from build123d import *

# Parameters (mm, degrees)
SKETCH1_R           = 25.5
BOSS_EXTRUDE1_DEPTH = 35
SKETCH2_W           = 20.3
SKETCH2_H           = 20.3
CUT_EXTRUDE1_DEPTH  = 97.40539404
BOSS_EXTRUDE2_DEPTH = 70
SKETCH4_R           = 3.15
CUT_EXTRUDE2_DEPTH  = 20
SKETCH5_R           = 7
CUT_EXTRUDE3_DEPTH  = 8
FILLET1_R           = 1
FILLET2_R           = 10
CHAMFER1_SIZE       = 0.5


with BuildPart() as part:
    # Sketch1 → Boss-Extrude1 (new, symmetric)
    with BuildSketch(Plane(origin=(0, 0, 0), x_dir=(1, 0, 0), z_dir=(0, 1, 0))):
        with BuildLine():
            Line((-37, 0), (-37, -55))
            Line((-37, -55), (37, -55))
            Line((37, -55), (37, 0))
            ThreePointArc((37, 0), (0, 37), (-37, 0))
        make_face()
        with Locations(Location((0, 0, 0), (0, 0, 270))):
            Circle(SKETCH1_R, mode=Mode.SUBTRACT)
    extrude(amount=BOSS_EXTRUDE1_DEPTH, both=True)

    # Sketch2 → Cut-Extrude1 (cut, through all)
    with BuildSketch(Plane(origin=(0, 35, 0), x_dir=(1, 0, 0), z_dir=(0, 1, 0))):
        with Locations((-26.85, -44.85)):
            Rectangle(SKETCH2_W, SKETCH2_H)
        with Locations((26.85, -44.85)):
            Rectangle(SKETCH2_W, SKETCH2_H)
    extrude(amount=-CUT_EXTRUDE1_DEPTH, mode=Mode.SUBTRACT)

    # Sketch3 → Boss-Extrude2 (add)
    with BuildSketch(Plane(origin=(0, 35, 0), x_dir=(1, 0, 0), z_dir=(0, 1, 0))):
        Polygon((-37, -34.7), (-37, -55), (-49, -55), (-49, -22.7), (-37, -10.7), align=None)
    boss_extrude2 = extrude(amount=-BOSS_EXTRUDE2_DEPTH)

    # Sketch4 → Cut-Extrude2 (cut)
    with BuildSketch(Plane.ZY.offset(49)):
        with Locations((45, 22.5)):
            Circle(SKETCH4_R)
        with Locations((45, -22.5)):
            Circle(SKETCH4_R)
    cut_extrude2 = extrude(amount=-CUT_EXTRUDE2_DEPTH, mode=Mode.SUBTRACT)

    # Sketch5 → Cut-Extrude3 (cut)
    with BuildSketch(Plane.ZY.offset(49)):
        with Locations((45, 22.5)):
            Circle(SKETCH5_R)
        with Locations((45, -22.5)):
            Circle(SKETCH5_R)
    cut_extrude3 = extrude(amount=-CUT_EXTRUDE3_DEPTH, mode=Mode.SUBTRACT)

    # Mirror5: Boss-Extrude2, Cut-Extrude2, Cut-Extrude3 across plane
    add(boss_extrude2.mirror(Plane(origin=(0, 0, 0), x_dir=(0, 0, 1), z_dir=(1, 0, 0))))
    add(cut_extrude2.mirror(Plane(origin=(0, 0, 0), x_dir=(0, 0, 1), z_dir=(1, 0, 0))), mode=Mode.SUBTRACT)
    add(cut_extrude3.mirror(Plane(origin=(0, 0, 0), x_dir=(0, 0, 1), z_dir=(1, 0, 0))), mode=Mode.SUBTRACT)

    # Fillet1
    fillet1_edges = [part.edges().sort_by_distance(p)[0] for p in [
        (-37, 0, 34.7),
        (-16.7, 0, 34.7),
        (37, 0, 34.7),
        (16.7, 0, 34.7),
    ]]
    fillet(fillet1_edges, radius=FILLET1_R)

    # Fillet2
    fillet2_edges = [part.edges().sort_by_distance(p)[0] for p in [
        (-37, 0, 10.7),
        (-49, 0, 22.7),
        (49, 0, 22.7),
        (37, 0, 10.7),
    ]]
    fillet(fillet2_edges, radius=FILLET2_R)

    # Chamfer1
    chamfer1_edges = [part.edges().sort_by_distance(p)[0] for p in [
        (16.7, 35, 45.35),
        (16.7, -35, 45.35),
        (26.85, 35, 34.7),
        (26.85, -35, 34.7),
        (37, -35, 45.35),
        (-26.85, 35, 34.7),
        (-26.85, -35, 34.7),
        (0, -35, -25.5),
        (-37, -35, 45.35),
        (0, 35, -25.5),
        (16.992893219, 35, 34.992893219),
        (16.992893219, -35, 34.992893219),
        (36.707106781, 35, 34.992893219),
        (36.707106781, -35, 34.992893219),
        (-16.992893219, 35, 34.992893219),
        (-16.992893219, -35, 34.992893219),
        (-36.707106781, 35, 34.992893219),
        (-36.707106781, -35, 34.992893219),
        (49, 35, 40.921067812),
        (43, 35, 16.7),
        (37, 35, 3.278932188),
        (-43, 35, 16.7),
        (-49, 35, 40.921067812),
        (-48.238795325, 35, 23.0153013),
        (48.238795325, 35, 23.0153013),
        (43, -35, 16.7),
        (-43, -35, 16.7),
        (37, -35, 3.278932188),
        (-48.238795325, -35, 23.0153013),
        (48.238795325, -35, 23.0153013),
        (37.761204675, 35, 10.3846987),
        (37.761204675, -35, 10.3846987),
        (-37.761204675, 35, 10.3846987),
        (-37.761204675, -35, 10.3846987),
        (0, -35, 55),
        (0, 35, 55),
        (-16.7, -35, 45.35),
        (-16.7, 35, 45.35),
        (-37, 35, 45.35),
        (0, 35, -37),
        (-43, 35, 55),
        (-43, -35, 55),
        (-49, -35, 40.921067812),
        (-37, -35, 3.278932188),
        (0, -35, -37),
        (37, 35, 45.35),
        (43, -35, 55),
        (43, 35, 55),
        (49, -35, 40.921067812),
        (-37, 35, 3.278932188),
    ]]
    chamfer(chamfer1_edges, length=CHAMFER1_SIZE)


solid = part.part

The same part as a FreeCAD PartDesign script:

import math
import FreeCAD as App
import Part
import Sketcher
Q = App.Units.Quantity


def edges_at(feature, points):
    """Names of the edges that pass closest to the given points."""
    edges = feature.Shape.Edges
    near = lambda p: min(range(len(edges)), key=lambda i: edges[i].distToShape(Part.Vertex(*p))[0])
    return sorted({f"Edge{near(p) + 1}" for p in points})

doc = App.newDocument("Part")
body = doc.addObject("PartDesign::Body", "Body")

# Sketch on XZ plane
sketch1 = body.newObject("Sketcher::SketchObject", "Sketch")
sketch1.AttachmentSupport = (doc.getObject("XZ_Plane"), [""])
sketch1.MapMode = "FlatFace"
sketch1.addGeometry(Part.LineSegment(App.Vector(-37, 0, 0), App.Vector(-37, 55, 0)), False)
sketch1.addGeometry(Part.LineSegment(App.Vector(-37, 55, 0), App.Vector(37, 55, 0)), False)
sketch1.addGeometry(Part.LineSegment(App.Vector(37, 55, 0), App.Vector(37, 0, 0)), False)
sketch1.addGeometry(Part.ArcOfCircle(Part.Circle(App.Vector(0, 0, 0), App.Vector(0, 0, 1), 37), math.radians(180), math.radians(360)), False)
sketch1.addGeometry(Part.Circle(App.Vector(0, 0, 0), App.Vector(0, 0, 1), 26), False)
sketch1.addConstraint(Sketcher.Constraint("Coincident", 0, 2, 1, 1))
sketch1.addConstraint(Sketcher.Constraint("Coincident", 1, 2, 2, 1))
sketch1.addConstraint(Sketcher.Constraint("Tangent", 2, 2, 3, 2))
sketch1.addConstraint(Sketcher.Constraint("Tangent", 3, 1, 0, 1))
sketch1.addConstraint(Sketcher.Constraint("Vertical", 0))
sketch1.addConstraint(Sketcher.Constraint("Horizontal", 1))
sketch1.addConstraint(Sketcher.Constraint("Vertical", 2))
sketch1.addConstraint(Sketcher.Constraint("Coincident", 3, 3, -1, 1))
sketch1.addConstraint(Sketcher.Constraint("Coincident", 4, 3, -1, 1))
sketch1.addConstraint(Sketcher.Constraint("Diameter", 4, Q("51 mm")))
sketch1.addConstraint(Sketcher.Constraint("Radius", 3, Q("37 mm")))
sketch1.addConstraint(Sketcher.Constraint("DistanceY", 0, 1, 0, 2, Q("55 mm")))
pad1 = body.newObject("PartDesign::Pad", "Pad")
pad1.Profile = sketch1
pad1.Length = 70
pad1.Midplane = True

# Sketch on XZ plane
sketch2 = body.newObject("Sketcher::SketchObject", "Sketch001")
sketch2.AttachmentSupport = (doc.getObject("XZ_Plane"), [""])
sketch2.MapMode = "FlatFace"
sketch2.AttachmentOffset = App.Placement(App.Vector(0, 0, -35), App.Rotation())
sketch2.addGeometry(Part.LineSegment(App.Vector(-37, 35, 0), App.Vector(-37, 55, 0)), False)
sketch2.addGeometry(Part.LineSegment(App.Vector(-37, 55, 0), App.Vector(-17, 55, 0)), False)
sketch2.addGeometry(Part.LineSegment(App.Vector(-17, 55, 0), App.Vector(-17, 35, 0)), False)
sketch2.addGeometry(Part.LineSegment(App.Vector(-17, 35, 0), App.Vector(-37, 35, 0)), False)
sketch2.addGeometry(Part.LineSegment(App.Vector(17, 35, 0), App.Vector(17, 55, 0)), False)
sketch2.addGeometry(Part.LineSegment(App.Vector(17, 55, 0), App.Vector(37, 55, 0)), False)
sketch2.addGeometry(Part.LineSegment(App.Vector(37, 55, 0), App.Vector(37, 35, 0)), False)
sketch2.addGeometry(Part.LineSegment(App.Vector(37, 35, 0), App.Vector(17, 35, 0)), False)
sketch2.addConstraint(Sketcher.Constraint("Coincident", 0, 2, 1, 1))
sketch2.addConstraint(Sketcher.Constraint("Coincident", 1, 2, 2, 1))
sketch2.addConstraint(Sketcher.Constraint("Coincident", 2, 2, 3, 1))
sketch2.addConstraint(Sketcher.Constraint("Coincident", 3, 2, 0, 1))
sketch2.addConstraint(Sketcher.Constraint("Coincident", 4, 2, 5, 1))
sketch2.addConstraint(Sketcher.Constraint("Coincident", 5, 2, 6, 1))
sketch2.addConstraint(Sketcher.Constraint("Coincident", 6, 2, 7, 1))
sketch2.addConstraint(Sketcher.Constraint("Coincident", 7, 2, 4, 1))
sketch2.addConstraint(Sketcher.Constraint("Vertical", 0))
sketch2.addConstraint(Sketcher.Constraint("Horizontal", 1))
sketch2.addConstraint(Sketcher.Constraint("Vertical", 2))
sketch2.addConstraint(Sketcher.Constraint("Horizontal", 3))
sketch2.addConstraint(Sketcher.Constraint("Vertical", 4))
sketch2.addConstraint(Sketcher.Constraint("Horizontal", 5))
sketch2.addConstraint(Sketcher.Constraint("Vertical", 6))
sketch2.addConstraint(Sketcher.Constraint("Horizontal", 7))
sketch2.addConstraint(Sketcher.Constraint("Symmetric", 1, 2, 4, 2, -2))
sketch2.addConstraint(Sketcher.Constraint("Symmetric", 3, 2, 6, 2, -2))
sketch2.addConstraint(Sketcher.Constraint("Equal", 7, 0))
sketch2.addConstraint(Sketcher.Constraint("DistanceX", 1, 1, 1, 2, Q("20.3 mm")))
sketch2.addConstraint(Sketcher.Constraint("DistanceX", 0, 2, -1, 1, Q("37 mm")))
sketch2.addConstraint(Sketcher.Constraint("DistanceY", -1, 1, 0, 2, Q("55 mm")))
pocket1 = body.newObject("PartDesign::Pocket", "Pocket")
pocket1.Profile = sketch2
pocket1.Type = "ThroughAll"
pocket1.Reversed = True

# Sketch on XZ plane
sketch3 = body.newObject("Sketcher::SketchObject", "Sketch002")
sketch3.AttachmentSupport = (doc.getObject("XZ_Plane"), [""])
sketch3.MapMode = "FlatFace"
sketch3.AttachmentOffset = App.Placement(App.Vector(0, 0, -35), App.Rotation())
sketch3.addGeometry(Part.LineSegment(App.Vector(-37, 55, 0), App.Vector(-37, 11, 0)), False)
sketch3.addGeometry(Part.LineSegment(App.Vector(-37, 11, 0), App.Vector(-49, 23, 0)), False)
sketch3.addGeometry(Part.LineSegment(App.Vector(-49, 23, 0), App.Vector(-49, 55, 0)), False)
sketch3.addGeometry(Part.LineSegment(App.Vector(-49, 55, 0), App.Vector(-37, 55, 0)), False)
sketch3.addConstraint(Sketcher.Constraint("Coincident", 0, 2, 1, 1))
sketch3.addConstraint(Sketcher.Constraint("Coincident", 1, 2, 2, 1))
sketch3.addConstraint(Sketcher.Constraint("Coincident", 2, 2, 3, 1))
sketch3.addConstraint(Sketcher.Constraint("Coincident", 3, 2, 0, 1))
sketch3.addConstraint(Sketcher.Constraint("Vertical", 0))
sketch3.addConstraint(Sketcher.Constraint("Vertical", 2))
sketch3.addConstraint(Sketcher.Constraint("Horizontal", 3))
sketch3.addConstraint(Sketcher.Constraint("DistanceX", 3, 1, 3, 2, Q("12 mm")))
sketch3.addConstraint(Sketcher.Constraint("Angle", 1, Q("135 deg")))
sketch3.addConstraint(Sketcher.Constraint("DistanceY", 0, 2, 0, 1, Q("44.3 mm")))
sketch3.addConstraint(Sketcher.Constraint("DistanceX", 0, 2, -1, 1, Q("37 mm")))
sketch3.addConstraint(Sketcher.Constraint("DistanceY", -1, 1, 2, 2, Q("55 mm")))
pad2 = body.newObject("PartDesign::Pad", "Pad001")
pad2.Profile = sketch3
pad2.Length = 70

# Sketch on YZ plane
sketch4 = body.newObject("Sketcher::SketchObject", "Sketch003")
sketch4.AttachmentSupport = (doc.getObject("YZ_Plane"), [""])
sketch4.MapMode = "FlatFace"
sketch4.AttachmentOffset = App.Placement(App.Vector(0, 0, -49), App.Rotation())
sketch4.addGeometry(Part.Circle(App.Vector(22.5, 45, 0), App.Vector(0, 0, 1), 3.1), False)
sketch4.addGeometry(Part.Circle(App.Vector(-22.5, 45, 0), App.Vector(0, 0, 1), 3.1), False)
sketch4.addConstraint(Sketcher.Constraint("Equal", 0, 1))
sketch4.addConstraint(Sketcher.Constraint("Symmetric", 0, 3, 1, 3, -2))
sketch4.addConstraint(Sketcher.Constraint("Diameter", 0, Q("6.3 mm")))
sketch4.addConstraint(Sketcher.Constraint("DistanceY", -1, 1, 0, 3, Q("45 mm")))
sketch4.addConstraint(Sketcher.Constraint("DistanceX", 1, 3, 0, 3, Q("45 mm")))
pocket2 = body.newObject("PartDesign::Pocket", "Pocket001")
pocket2.Profile = sketch4
pocket2.Length = 20
pocket2.Reversed = True

# Sketch on YZ plane
sketch5 = body.newObject("Sketcher::SketchObject", "Sketch004")
sketch5.AttachmentSupport = (doc.getObject("YZ_Plane"), [""])
sketch5.MapMode = "FlatFace"
sketch5.AttachmentOffset = App.Placement(App.Vector(0, 0, -49), App.Rotation())
sketch5.addGeometry(Part.Circle(App.Vector(22, 45, 0), App.Vector(0, 0, 1), 7), False)
sketch5.addGeometry(Part.Circle(App.Vector(-22, 45, 0), App.Vector(0, 0, 1), 7), False)
sketch5.addConstraint(Sketcher.Constraint("Equal", 0, 1))
sketch5.addConstraint(Sketcher.Constraint("Symmetric", 0, 3, 1, 3, -2))
sketch5.addConstraint(Sketcher.Constraint("Diameter", 0, Q("14 mm")))
sketch5.addConstraint(Sketcher.Constraint("DistanceY", -1, 1, 0, 3, Q("45 mm")))
sketch5.addConstraint(Sketcher.Constraint("DistanceX", 1, 3, 0, 3, Q("45 mm")))
pocket3 = body.newObject("PartDesign::Pocket", "Pocket002")
pocket3.Profile = sketch5
pocket3.Length = 8
pocket3.Reversed = True
doc.recompute()

mirrored = body.newObject("PartDesign::Mirrored", "Mirrored")
mirrored.Originals = [pad2, pocket2, pocket3]
mirrored.MirrorPlane = (doc.getObject("YZ_Plane"), [""])
body.Tip = mirrored
doc.recompute()

fillet = body.newObject("PartDesign::Fillet", "Fillet")
fillet.Base = (mirrored, edges_at(mirrored, [
    (-37, 0, 34.7),
    (-16.7, 0, 34.7),
    (37, 0, 34.7),
    (16.7, 0, 34.7),
]))
fillet.Radius = 1
doc.recompute()

fillet2 = body.newObject("PartDesign::Fillet", "Fillet001")
fillet2.Base = (fillet, edges_at(fillet, [
    (-37, 0, 10.7),
    (-49, 0, 22.7),
    (49, 0, 22.7),
    (37, 0, 10.7),
]))
fillet2.Radius = 10
doc.recompute()

chamfer = body.newObject("PartDesign::Chamfer", "Chamfer")
chamfer.Base = (fillet2, edges_at(fillet2, [
    (16.7, 35, 45.35),
    (16.7, -35, 45.35),
    (26.85, 35, 34.7),
    (26.85, -35, 34.7),
    (37, -35, 45.35),
    (-26.85, 35, 34.7),
    (-26.85, -35, 34.7),
    (0, -35, -25.5),
    (-37, -35, 45.35),
    (0, 35, -25.5),
    (16.993, 35, 34.993),
    (16.993, -35, 34.993),
    (36.707, 35, 34.993),
    (36.707, -35, 34.993),
    (-16.993, 35, 34.993),
    (-16.993, -35, 34.993),
    (-36.707, 35, 34.993),
    (-36.707, -35, 34.993),
    (49, 35, 40.921),
    (43, 35, 16.7),
    (37, 35, 3.279),
    (-43, 35, 16.7),
    (-49, 35, 40.921),
    (-48.239, 35, 23.015),
    (48.239, 35, 23.015),
    (43, -35, 16.7),
    (-43, -35, 16.7),
    (37, -35, 3.279),
    (-48.239, -35, 23.015),
    (48.239, -35, 23.015),
    (37.761, 35, 10.385),
    (37.761, -35, 10.385),
    (-37.761, 35, 10.385),
    (-37.761, -35, 10.385),
    (0, -35, 55),
    (0, 35, 55),
    (-16.7, -35, 45.35),
    (-16.7, 35, 45.35),
    (-37, 35, 45.35),
    (0, 35, -37),
    (-43, 35, 55),
    (-43, -35, 55),
    (-49, -35, 40.921),
    (-37, -35, 3.279),
    (0, -35, -37),
    (37, 35, 45.35),
    (43, -35, 55),
    (43, 35, 55),
    (49, -35, 40.921),
    (-37, 35, 3.279),
]))
chamfer.Size = 0.5

doc.recompute()
